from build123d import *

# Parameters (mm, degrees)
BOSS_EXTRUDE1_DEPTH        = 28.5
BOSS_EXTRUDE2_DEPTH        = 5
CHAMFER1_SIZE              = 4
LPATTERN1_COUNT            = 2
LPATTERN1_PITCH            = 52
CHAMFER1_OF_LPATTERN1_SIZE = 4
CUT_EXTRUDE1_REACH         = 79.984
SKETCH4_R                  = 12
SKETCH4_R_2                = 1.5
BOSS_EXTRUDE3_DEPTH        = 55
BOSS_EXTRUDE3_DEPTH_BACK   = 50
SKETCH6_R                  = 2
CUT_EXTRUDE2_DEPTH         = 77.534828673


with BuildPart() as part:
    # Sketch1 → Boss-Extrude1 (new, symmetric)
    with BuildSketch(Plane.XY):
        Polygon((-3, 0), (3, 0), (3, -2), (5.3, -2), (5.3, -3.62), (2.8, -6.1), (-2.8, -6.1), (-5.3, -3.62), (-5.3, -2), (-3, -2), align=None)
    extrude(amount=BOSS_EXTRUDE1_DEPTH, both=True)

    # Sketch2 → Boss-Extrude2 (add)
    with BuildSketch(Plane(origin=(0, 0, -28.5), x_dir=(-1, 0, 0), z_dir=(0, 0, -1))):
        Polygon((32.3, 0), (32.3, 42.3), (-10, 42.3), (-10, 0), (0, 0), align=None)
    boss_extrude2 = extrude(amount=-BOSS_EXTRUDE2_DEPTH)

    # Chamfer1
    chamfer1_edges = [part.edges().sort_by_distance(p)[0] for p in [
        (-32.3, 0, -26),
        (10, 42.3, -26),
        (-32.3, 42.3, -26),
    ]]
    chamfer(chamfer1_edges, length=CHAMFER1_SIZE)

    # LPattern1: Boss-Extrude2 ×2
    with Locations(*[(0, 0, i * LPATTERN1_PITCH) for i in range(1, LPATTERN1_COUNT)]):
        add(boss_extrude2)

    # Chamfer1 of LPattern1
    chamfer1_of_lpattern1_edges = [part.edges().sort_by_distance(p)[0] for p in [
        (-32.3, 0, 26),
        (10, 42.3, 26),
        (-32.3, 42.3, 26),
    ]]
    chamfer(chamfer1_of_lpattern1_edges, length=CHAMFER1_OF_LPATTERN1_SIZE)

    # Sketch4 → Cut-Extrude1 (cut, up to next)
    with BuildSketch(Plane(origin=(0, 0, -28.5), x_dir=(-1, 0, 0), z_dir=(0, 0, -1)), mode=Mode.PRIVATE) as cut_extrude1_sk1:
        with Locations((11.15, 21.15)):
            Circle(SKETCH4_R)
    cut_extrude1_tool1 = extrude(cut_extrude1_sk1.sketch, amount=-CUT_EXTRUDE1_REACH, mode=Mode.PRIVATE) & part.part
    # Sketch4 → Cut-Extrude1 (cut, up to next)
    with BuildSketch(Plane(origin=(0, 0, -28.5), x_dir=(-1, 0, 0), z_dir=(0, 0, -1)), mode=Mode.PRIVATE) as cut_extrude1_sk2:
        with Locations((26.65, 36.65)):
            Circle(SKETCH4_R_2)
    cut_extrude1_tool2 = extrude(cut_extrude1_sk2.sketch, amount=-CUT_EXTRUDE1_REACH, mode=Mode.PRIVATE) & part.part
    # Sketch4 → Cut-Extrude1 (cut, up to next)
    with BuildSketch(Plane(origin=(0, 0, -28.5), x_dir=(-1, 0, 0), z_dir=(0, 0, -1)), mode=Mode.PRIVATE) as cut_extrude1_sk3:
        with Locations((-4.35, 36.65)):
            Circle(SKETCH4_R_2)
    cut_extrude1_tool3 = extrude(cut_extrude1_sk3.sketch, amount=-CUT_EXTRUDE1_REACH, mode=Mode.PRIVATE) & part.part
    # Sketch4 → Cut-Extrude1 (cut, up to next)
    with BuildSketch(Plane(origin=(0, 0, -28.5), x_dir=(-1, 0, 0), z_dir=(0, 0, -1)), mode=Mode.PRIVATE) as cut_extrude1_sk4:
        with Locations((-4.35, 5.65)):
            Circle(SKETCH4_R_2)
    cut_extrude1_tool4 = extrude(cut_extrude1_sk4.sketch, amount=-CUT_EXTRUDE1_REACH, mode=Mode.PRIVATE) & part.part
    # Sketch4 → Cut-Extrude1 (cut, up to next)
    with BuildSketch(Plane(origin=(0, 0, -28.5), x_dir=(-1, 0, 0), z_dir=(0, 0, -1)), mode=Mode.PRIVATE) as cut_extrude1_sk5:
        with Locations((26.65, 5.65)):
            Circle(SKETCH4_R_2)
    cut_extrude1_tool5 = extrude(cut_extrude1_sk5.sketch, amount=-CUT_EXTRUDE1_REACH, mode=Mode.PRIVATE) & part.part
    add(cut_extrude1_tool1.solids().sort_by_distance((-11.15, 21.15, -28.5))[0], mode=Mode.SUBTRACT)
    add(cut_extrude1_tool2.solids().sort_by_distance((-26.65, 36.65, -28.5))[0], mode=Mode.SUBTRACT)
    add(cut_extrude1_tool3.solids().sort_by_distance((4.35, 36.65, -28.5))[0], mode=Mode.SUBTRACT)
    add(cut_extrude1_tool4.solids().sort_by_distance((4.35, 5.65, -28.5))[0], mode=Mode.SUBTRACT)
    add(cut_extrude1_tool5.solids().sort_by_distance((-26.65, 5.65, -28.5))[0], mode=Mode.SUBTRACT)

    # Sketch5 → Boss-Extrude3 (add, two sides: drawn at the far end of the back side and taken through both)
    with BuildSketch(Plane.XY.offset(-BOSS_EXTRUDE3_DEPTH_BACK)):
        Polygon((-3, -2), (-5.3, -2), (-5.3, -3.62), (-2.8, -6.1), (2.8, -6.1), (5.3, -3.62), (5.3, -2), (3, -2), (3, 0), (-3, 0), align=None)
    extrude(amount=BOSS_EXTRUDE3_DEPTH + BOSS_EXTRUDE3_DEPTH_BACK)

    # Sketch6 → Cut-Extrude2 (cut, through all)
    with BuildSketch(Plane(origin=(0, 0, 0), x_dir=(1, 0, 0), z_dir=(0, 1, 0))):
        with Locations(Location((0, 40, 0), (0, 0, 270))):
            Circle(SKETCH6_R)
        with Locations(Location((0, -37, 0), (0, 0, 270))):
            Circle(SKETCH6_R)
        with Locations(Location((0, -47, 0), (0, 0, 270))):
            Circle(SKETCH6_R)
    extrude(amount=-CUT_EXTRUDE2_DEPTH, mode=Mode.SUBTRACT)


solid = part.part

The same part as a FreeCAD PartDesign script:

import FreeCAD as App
import Part
import Sketcher
from FreeCAD import Vector
Q = App.Units.Quantity


def edges_at(feature, points):
    """Names of the edges that pass closest to the given points."""
    edges = feature.Shape.Edges
    near = lambda p: min(range(len(edges)), key=lambda i: edges[i].distToShape(Part.Vertex(*p))[0])
    return sorted({f"Edge{near(p) + 1}" for p in points})


def add_polygon(sketch, points):
    """Adds a closed chain of lines whose ends are joined by coincident constraints."""
    first, n = sketch.GeometryCount, len(points)
    for a, b in zip(points, points[1:] + points[:1]):
        sketch.addGeometry(Part.LineSegment(App.Vector(*a, 0), App.Vector(*b, 0)), False)
    for i in range(n):
        sketch.addConstraint(Sketcher.Constraint("Coincident", first + i, 2, first + (i + 1) % n, 1))

doc = App.newDocument("Part")
params = doc.addObject("Spreadsheet::Sheet", "Params")
for row, (alias, value) in enumerate([
    ("sketch1_width", "6 mm"),
    ("sketch1_height", "2 mm"),
    ("sketch1_width2", "2.3 mm"),
    ("sketch1_width3", "5.6 mm"),
    ("sketch1_height2", "1.62 mm"),
    ("pad1_length", "57 mm"),
    ("sketch2_width", "42.3 mm"),
    ("pad2_length", "5 mm"),
    ("chamfer_size", "4 mm"),
    ("linearpattern_pitch", "52 mm"),
    ("chamfer2_size", "4 mm"),
    ("sketch3_diameter", "24 mm"),
    ("sketch4_diameter", "3 mm"),
    ("sketch5_diameter", "3 mm"),
    ("sketch6_diameter", "3 mm"),
    ("sketch7_diameter", "3 mm"),
    ("sketch8_width", "6 mm"),
    ("sketch8_height", "2 mm"),
    ("sketch8_width2", "2.3 mm"),
    ("sketch8_width3", "5.6 mm"),
    ("sketch8_height2", "1.62 mm"),
    ("pad3_length", "55 mm"),
    ("pad3_length2", "50 mm"),
    ("sketch9_diameter", "4 mm"),
], start=1):
    params.set(f"A{row}", alias)
    params.set(f"B{row}", "=" + value)
    params.setAlias(f"B{row}", alias)

body = doc.addObject("PartDesign::Body", "Body")

sketch1 = body.newObject("Sketcher::SketchObject", "Sketch")
sketch1.AttachmentSupport = (doc.getObject("XY_Plane"), [""])
sketch1.MapMode = "FlatFace"
add_polygon(sketch1, [(3, 0), (-3, 0), (-3, -2), (-5.3, -2), (-5.3, -3.6), (-2.8, -6.1), (2.8, -6.1), (5.3, -3.6), (5.3, -2), (3, -2)])
sketch1.addConstraint(Sketcher.Constraint("Horizontal", 0))
sketch1.addConstraint(Sketcher.Constraint("Vertical", 1))
sketch1.addConstraint(Sketcher.Constraint("Horizontal", 2))
sketch1.addConstraint(Sketcher.Constraint("Vertical", 3))
sketch1.addConstraint(Sketcher.Constraint("Horizontal", 5))
sketch1.addConstraint(Sketcher.Constraint("Vertical", 7))
sketch1.addConstraint(Sketcher.Constraint("Horizontal", 8))
sketch1.addConstraint(Sketcher.Constraint("Vertical", 9))
sketch1.addConstraint(Sketcher.Constraint("Symmetric", 0, 2, 9, 2, -1, 1))
sketch1.addConstraint(Sketcher.Constraint("Symmetric", 3, 2, 6, 2, -2))
sketch1.addConstraint(Sketcher.Constraint("Horizontal", 2, 2, 7, 2))
sketch1.addConstraint(Sketcher.Constraint("Equal", 4, 6))
sketch1.addConstraint(Sketcher.Constraint("DistanceX", 0, 2, 0, 1, Q("6 mm")))
sketch1.addConstraint(Sketcher.Constraint("DistanceY", 1, 2, 1, 1, Q("2 mm")))
sketch1.addConstraint(Sketcher.Constraint("DistanceX", 2, 2, 2, 1, Q("2.3 mm")))
sketch1.addConstraint(Sketcher.Constraint("DistanceX", 5, 1, 5, 2, Q("5.6 mm")))
sketch1.addConstraint(Sketcher.Constraint("DistanceY", 3, 2, 3, 1, Q("1.62 mm")))
sketch1.addConstraint(Sketcher.Constraint("DistanceY", 4, 2, -1, 1, Q("6.1 mm")))
sketch1.setExpression("Constraints[22]", "Params.sketch1_width")
sketch1.setExpression("Constraints[23]", "Params.sketch1_height")
sketch1.setExpression("Constraints[24]", "Params.sketch1_width2")
sketch1.setExpression("Constraints[25]", "Params.sketch1_width3")
sketch1.setExpression("Constraints[26]", "Params.sketch1_height2")
pad1 = body.newObject("PartDesign::Pad", "Pad")
pad1.Profile = sketch1
pad1.setExpression("Length", "Params.pad1_length")
pad1.Midplane = True

sketch2 = body.newObject("Sketcher::SketchObject", "Sketch001")
sketch2.AttachmentSupport = (doc.getObject("XY_Plane"), [""])
sketch2.MapMode = "FlatFace"
sketch2.AttachmentOffset = App.Placement(Vector(0, 0, -28.5), App.Rotation())
add_polygon(sketch2, [(-32, 0), (-32, 42), (10, 42), (10, 0)])
sketch2.addConstraint(Sketcher.Constraint("Vertical", 0))
sketch2.addConstraint(Sketcher.Constraint("Horizontal", 1))
sketch2.addConstraint(Sketcher.Constraint("Vertical", 2))
sketch2.addConstraint(Sketcher.Constraint("Horizontal", 3))
sketch2.addConstraint(Sketcher.Constraint("PointOnObject", 2, 2, -1))
sketch2.addConstraint(Sketcher.Constraint("Equal", 3, 0))
sketch2.addConstraint(Sketcher.Constraint("DistanceX", 1, 1, 1, 2, Q("42.3 mm")))
sketch2.addConstraint(Sketcher.Constraint("DistanceX", -1, 1, 1, 2, Q("10 mm")))
sketch2.setExpression("Constraints[10]", "Params.sketch2_width")
pad2 = body.newObject("PartDesign::Pad", "Pad001")
pad2.Profile = sketch2
pad2.setExpression("Length", "Params.pad2_length")
doc.recompute()

chamfer = body.newObject("PartDesign::Chamfer", "Chamfer")
chamfer.Base = (pad2, edges_at(pad2, [(-32.3, 0, -26), (10, 42.3, -26), (-32.3, 42.3, -26)]))
chamfer.setExpression("Size", "Params.chamfer_size")
doc.recompute()

linearpattern = body.newObject("PartDesign::LinearPattern", "LinearPattern")
linearpattern.Originals = [pad2]
linearpattern.Direction = (doc.getObject("Z_Axis"), [""])
linearpattern.Mode = "offset"
linearpattern.setExpression("Offset", "Params.linearpattern_pitch")
linearpattern.Occurrences = 2
body.Tip = linearpattern
doc.recompute()

chamfer2 = body.newObject("PartDesign::Chamfer", "Chamfer001")
chamfer2.Base = (linearpattern, edges_at(linearpattern, [(-32.3, 0, 26), (10, 42.3, 26), (-32.3, 42.3, 26)]))
chamfer2.setExpression("Size", "Params.chamfer2_size")

sketch3 = body.newObject("Sketcher::SketchObject", "Sketch002")
sketch3.AttachmentSupport = (doc.getObject("XY_Plane"), [""])
sketch3.MapMode = "FlatFace"
sketch3.AttachmentOffset = App.Placement(Vector(0, 0, -28.5), App.Rotation())
sketch3.addGeometry(Part.Circle(Vector(-11, 21, 0), Vector(0, 0, 1), 12), False)
sketch3.addConstraint(Sketcher.Constraint("Diameter", 0, Q("24 mm")))
sketch3.addConstraint(Sketcher.Constraint("DistanceX", 0, 3, -1, 1, Q("11.15 mm")))
sketch3.addConstraint(Sketcher.Constraint("DistanceY", -1, 1, 0, 3, Q("21.15 mm")))
sketch3.setExpression("Constraints[0]", "Params.sketch3_diameter")
pocket1 = body.newObject("PartDesign::Pocket", "Pocket")
pocket1.Profile = sketch3
pocket1.Type = "UpToFirst"
pocket1.Reversed = True

sketch4 = body.newObject("Sketcher::SketchObject", "Sketch003")
sketch4.AttachmentSupport = (doc.getObject("XY_Plane"), [""])
sketch4.MapMode = "FlatFace"
sketch4.AttachmentOffset = App.Placement(Vector(0, 0, -28.5), App.Rotation())
sketch4.addGeometry(Part.Circle(Vector(-26.6, 36.6, 0), Vector(0, 0, 1), 1.5), False)
sketch4.addConstraint(Sketcher.Constraint("Diameter", 0, Q("3 mm")))
sketch4.addConstraint(Sketcher.Constraint("DistanceX", 0, 3, -1, 1, Q("26.65 mm")))
sketch4.addConstraint(Sketcher.Constraint("DistanceY", -1, 1, 0, 3, Q("36.65 mm")))
sketch4.setExpression("Constraints[0]", "Params.sketch4_diameter")
pocket2 = body.newObject("PartDesign::Pocket", "Pocket001")
pocket2.Profile = sketch4
pocket2.Type = "UpToFirst"
pocket2.Reversed = True

sketch5 = body.newObject("Sketcher::SketchObject", "Sketch004")
sketch5.AttachmentSupport = (doc.getObject("XY_Plane"), [""])
sketch5.MapMode = "FlatFace"
sketch5.AttachmentOffset = App.Placement(Vector(0, 0, -28.5), App.Rotation())
sketch5.addGeometry(Part.Circle(Vector(4.3, 36.6, 0), Vector(0, 0, 1), 1.5), False)
sketch5.addConstraint(Sketcher.Constraint("Diameter", 0, Q("3 mm")))
sketch5.addConstraint(Sketcher.Constraint("DistanceX", -1, 1, 0, 3, Q("4.35 mm")))
sketch5.addConstraint(Sketcher.Constraint("DistanceY", -1, 1, 0, 3, Q("36.65 mm")))
sketch5.setExpression("Constraints[0]", "Params.sketch5_diameter")
pocket3 = body.newObject("PartDesign::Pocket", "Pocket002")
pocket3.Profile = sketch5
pocket3.Type = "UpToFirst"
pocket3.Reversed = True

sketch6 = body.newObject("Sketcher::SketchObject", "Sketch005")
sketch6.AttachmentSupport = (doc.getObject("XY_Plane"), [""])
sketch6.MapMode = "FlatFace"
sketch6.AttachmentOffset = App.Placement(Vector(0, 0, -28.5), App.Rotation())
sketch6.addGeometry(Part.Circle(Vector(4.3, 5.7, 0), Vector(0, 0, 1), 1.5), False)
sketch6.addConstraint(Sketcher.Constraint("Diameter", 0, Q("3 mm")))
sketch6.addConstraint(Sketcher.Constraint("DistanceX", -1, 1, 0, 3, Q("4.35 mm")))
sketch6.addConstraint(Sketcher.Constraint("DistanceY", -1, 1, 0, 3, Q("5.65 mm")))
sketch6.setExpression("Constraints[0]", "Params.sketch6_diameter")
pocket4 = body.newObject("PartDesign::Pocket", "Pocket003")
pocket4.Profile = sketch6
pocket4.Type = "UpToFirst"
pocket4.Reversed = True

sketch7 = body.newObject("Sketcher::SketchObject", "Sketch006")
sketch7.AttachmentSupport = (doc.getObject("XY_Plane"), [""])
sketch7.MapMode = "FlatFace"
sketch7.AttachmentOffset = App.Placement(Vector(0, 0, -28.5), App.Rotation())
sketch7.addGeometry(Part.Circle(Vector(-26.6, 5.7, 0), Vector(0, 0, 1), 1.5), False)
sketch7.addConstraint(Sketcher.Constraint("Diameter", 0, Q("3 mm")))
sketch7.addConstraint(Sketcher.Constraint("DistanceX", 0, 3, -1, 1, Q("26.65 mm")))
sketch7.addConstraint(Sketcher.Constraint("DistanceY", -1, 1, 0, 3, Q("5.65 mm")))
sketch7.setExpression("Constraints[0]", "Params.sketch7_diameter")
pocket5 = body.newObject("PartDesign::Pocket", "Pocket004")
pocket5.Profile = sketch7
pocket5.Type = "UpToFirst"
pocket5.Reversed = True

sketch8 = body.newObject("Sketcher::SketchObject", "Sketch007")
sketch8.AttachmentSupport = (doc.getObject("XY_Plane"), [""])
sketch8.MapMode = "FlatFace"
add_polygon(sketch8, [(-3, -2), (-5.3, -2), (-5.3, -3.6), (-2.8, -6.1), (2.8, -6.1), (5.3, -3.6), (5.3, -2), (3, -2), (3, 0), (-3, 0)])
sketch8.addConstraint(Sketcher.Constraint("Horizontal", 0))
sketch8.addConstraint(Sketcher.Constraint("Vertical", 1))
sketch8.addConstraint(Sketcher.Constraint("Horizontal", 3))
sketch8.addConstraint(Sketcher.Constraint("Vertical", 5))
sketch8.addConstraint(Sketcher.Constraint("Horizontal", 6))
sketch8.addConstraint(Sketcher.Constraint("Vertical", 7))
sketch8.addConstraint(Sketcher.Constraint("Horizontal", 8))
sketch8.addConstraint(Sketcher.Constraint("Vertical", 9))
sketch8.addConstraint(Sketcher.Constraint("Symmetric", 7, 2, 8, 2, -1, 1))
sketch8.addConstraint(Sketcher.Constraint("Symmetric", 1, 2, 4, 2, -2))
sketch8.addConstraint(Sketcher.Constraint("Horizontal", 0, 2, 5, 2))
sketch8.addConstraint(Sketcher.Constraint("Equal", 2, 4))
sketch8.addConstraint(Sketcher.Constraint("DistanceX", 8, 2, 8, 1, Q("6 mm")))
sketch8.addConstraint(Sketcher.Constraint("DistanceY", 7, 1, 7, 2, Q("2 mm")))
sketch8.addConstraint(Sketcher.Constraint("DistanceX", 0, 2, 0, 1, Q("2.3 mm")))
sketch8.addConstraint(Sketcher.Constraint("DistanceX", 3, 1, 3, 2, Q("5.6 mm")))
sketch8.addConstraint(Sketcher.Constraint("DistanceY", 1, 2, 1, 1, Q("1.62 mm")))
sketch8.addConstraint(Sketcher.Constraint("DistanceY", 2, 2, -1, 1, Q("6.1 mm")))
sketch8.setExpression("Constraints[22]", "Params.sketch8_width")
sketch8.setExpression("Constraints[23]", "Params.sketch8_height")
sketch8.setExpression("Constraints[24]", "Params.sketch8_width2")
sketch8.setExpression("Constraints[25]", "Params.sketch8_width3")
sketch8.setExpression("Constraints[26]", "Params.sketch8_height2")
pad3 = body.newObject("PartDesign::Pad", "Pad002")
pad3.Profile = sketch8
pad3.Type = "TwoLengths"
pad3.setExpression("Length", "Params.pad3_length")
pad3.setExpression("Length2", "Params.pad3_length2")

sketch9 = body.newObject("Sketcher::SketchObject", "Sketch008")
sketch9.AttachmentSupport = (doc.getObject("XZ_Plane"), [""])
sketch9.MapMode = "FlatFace"
sketch9.addGeometry(Part.Circle(Vector(0, -40, 0), Vector(0, 0, 1), 2), False)
sketch9.addGeometry(Part.Circle(Vector(0, 37, 0), Vector(0, 0, 1), 2), False)
sketch9.addGeometry(Part.Circle(Vector(0, 47, 0), Vector(0, 0, 1), 2), False)
sketch9.addConstraint(Sketcher.Constraint("Equal", 0, 1))
sketch9.addConstraint(Sketcher.Constraint("Equal", 1, 2))
sketch9.addConstraint(Sketcher.Constraint("PointOnObject", 0, 3, -2))
sketch9.addConstraint(Sketcher.Constraint("PointOnObject", 1, 3, -2))
sketch9.addConstraint(Sketcher.Constraint("PointOnObject", 2, 3, -2))
sketch9.addConstraint(Sketcher.Constraint("Diameter", 0, Q("4 mm")))
sketch9.addConstraint(Sketcher.Constraint("DistanceY", 0, 3, -1, 1, Q("40 mm")))
sketch9.addConstraint(Sketcher.Constraint("DistanceY", -1, 1, 1, 3, Q("37 mm")))
sketch9.addConstraint(Sketcher.Constraint("DistanceY", -1, 1, 2, 3, Q("47 mm")))
sketch9.setExpression("Constraints[5]", "Params.sketch9_diameter")
pocket6 = body.newObject("PartDesign::Pocket", "Pocket005")
pocket6.Profile = sketch9
pocket6.Type = "ThroughAll"
pocket6.Reversed = True

doc.recompute()
